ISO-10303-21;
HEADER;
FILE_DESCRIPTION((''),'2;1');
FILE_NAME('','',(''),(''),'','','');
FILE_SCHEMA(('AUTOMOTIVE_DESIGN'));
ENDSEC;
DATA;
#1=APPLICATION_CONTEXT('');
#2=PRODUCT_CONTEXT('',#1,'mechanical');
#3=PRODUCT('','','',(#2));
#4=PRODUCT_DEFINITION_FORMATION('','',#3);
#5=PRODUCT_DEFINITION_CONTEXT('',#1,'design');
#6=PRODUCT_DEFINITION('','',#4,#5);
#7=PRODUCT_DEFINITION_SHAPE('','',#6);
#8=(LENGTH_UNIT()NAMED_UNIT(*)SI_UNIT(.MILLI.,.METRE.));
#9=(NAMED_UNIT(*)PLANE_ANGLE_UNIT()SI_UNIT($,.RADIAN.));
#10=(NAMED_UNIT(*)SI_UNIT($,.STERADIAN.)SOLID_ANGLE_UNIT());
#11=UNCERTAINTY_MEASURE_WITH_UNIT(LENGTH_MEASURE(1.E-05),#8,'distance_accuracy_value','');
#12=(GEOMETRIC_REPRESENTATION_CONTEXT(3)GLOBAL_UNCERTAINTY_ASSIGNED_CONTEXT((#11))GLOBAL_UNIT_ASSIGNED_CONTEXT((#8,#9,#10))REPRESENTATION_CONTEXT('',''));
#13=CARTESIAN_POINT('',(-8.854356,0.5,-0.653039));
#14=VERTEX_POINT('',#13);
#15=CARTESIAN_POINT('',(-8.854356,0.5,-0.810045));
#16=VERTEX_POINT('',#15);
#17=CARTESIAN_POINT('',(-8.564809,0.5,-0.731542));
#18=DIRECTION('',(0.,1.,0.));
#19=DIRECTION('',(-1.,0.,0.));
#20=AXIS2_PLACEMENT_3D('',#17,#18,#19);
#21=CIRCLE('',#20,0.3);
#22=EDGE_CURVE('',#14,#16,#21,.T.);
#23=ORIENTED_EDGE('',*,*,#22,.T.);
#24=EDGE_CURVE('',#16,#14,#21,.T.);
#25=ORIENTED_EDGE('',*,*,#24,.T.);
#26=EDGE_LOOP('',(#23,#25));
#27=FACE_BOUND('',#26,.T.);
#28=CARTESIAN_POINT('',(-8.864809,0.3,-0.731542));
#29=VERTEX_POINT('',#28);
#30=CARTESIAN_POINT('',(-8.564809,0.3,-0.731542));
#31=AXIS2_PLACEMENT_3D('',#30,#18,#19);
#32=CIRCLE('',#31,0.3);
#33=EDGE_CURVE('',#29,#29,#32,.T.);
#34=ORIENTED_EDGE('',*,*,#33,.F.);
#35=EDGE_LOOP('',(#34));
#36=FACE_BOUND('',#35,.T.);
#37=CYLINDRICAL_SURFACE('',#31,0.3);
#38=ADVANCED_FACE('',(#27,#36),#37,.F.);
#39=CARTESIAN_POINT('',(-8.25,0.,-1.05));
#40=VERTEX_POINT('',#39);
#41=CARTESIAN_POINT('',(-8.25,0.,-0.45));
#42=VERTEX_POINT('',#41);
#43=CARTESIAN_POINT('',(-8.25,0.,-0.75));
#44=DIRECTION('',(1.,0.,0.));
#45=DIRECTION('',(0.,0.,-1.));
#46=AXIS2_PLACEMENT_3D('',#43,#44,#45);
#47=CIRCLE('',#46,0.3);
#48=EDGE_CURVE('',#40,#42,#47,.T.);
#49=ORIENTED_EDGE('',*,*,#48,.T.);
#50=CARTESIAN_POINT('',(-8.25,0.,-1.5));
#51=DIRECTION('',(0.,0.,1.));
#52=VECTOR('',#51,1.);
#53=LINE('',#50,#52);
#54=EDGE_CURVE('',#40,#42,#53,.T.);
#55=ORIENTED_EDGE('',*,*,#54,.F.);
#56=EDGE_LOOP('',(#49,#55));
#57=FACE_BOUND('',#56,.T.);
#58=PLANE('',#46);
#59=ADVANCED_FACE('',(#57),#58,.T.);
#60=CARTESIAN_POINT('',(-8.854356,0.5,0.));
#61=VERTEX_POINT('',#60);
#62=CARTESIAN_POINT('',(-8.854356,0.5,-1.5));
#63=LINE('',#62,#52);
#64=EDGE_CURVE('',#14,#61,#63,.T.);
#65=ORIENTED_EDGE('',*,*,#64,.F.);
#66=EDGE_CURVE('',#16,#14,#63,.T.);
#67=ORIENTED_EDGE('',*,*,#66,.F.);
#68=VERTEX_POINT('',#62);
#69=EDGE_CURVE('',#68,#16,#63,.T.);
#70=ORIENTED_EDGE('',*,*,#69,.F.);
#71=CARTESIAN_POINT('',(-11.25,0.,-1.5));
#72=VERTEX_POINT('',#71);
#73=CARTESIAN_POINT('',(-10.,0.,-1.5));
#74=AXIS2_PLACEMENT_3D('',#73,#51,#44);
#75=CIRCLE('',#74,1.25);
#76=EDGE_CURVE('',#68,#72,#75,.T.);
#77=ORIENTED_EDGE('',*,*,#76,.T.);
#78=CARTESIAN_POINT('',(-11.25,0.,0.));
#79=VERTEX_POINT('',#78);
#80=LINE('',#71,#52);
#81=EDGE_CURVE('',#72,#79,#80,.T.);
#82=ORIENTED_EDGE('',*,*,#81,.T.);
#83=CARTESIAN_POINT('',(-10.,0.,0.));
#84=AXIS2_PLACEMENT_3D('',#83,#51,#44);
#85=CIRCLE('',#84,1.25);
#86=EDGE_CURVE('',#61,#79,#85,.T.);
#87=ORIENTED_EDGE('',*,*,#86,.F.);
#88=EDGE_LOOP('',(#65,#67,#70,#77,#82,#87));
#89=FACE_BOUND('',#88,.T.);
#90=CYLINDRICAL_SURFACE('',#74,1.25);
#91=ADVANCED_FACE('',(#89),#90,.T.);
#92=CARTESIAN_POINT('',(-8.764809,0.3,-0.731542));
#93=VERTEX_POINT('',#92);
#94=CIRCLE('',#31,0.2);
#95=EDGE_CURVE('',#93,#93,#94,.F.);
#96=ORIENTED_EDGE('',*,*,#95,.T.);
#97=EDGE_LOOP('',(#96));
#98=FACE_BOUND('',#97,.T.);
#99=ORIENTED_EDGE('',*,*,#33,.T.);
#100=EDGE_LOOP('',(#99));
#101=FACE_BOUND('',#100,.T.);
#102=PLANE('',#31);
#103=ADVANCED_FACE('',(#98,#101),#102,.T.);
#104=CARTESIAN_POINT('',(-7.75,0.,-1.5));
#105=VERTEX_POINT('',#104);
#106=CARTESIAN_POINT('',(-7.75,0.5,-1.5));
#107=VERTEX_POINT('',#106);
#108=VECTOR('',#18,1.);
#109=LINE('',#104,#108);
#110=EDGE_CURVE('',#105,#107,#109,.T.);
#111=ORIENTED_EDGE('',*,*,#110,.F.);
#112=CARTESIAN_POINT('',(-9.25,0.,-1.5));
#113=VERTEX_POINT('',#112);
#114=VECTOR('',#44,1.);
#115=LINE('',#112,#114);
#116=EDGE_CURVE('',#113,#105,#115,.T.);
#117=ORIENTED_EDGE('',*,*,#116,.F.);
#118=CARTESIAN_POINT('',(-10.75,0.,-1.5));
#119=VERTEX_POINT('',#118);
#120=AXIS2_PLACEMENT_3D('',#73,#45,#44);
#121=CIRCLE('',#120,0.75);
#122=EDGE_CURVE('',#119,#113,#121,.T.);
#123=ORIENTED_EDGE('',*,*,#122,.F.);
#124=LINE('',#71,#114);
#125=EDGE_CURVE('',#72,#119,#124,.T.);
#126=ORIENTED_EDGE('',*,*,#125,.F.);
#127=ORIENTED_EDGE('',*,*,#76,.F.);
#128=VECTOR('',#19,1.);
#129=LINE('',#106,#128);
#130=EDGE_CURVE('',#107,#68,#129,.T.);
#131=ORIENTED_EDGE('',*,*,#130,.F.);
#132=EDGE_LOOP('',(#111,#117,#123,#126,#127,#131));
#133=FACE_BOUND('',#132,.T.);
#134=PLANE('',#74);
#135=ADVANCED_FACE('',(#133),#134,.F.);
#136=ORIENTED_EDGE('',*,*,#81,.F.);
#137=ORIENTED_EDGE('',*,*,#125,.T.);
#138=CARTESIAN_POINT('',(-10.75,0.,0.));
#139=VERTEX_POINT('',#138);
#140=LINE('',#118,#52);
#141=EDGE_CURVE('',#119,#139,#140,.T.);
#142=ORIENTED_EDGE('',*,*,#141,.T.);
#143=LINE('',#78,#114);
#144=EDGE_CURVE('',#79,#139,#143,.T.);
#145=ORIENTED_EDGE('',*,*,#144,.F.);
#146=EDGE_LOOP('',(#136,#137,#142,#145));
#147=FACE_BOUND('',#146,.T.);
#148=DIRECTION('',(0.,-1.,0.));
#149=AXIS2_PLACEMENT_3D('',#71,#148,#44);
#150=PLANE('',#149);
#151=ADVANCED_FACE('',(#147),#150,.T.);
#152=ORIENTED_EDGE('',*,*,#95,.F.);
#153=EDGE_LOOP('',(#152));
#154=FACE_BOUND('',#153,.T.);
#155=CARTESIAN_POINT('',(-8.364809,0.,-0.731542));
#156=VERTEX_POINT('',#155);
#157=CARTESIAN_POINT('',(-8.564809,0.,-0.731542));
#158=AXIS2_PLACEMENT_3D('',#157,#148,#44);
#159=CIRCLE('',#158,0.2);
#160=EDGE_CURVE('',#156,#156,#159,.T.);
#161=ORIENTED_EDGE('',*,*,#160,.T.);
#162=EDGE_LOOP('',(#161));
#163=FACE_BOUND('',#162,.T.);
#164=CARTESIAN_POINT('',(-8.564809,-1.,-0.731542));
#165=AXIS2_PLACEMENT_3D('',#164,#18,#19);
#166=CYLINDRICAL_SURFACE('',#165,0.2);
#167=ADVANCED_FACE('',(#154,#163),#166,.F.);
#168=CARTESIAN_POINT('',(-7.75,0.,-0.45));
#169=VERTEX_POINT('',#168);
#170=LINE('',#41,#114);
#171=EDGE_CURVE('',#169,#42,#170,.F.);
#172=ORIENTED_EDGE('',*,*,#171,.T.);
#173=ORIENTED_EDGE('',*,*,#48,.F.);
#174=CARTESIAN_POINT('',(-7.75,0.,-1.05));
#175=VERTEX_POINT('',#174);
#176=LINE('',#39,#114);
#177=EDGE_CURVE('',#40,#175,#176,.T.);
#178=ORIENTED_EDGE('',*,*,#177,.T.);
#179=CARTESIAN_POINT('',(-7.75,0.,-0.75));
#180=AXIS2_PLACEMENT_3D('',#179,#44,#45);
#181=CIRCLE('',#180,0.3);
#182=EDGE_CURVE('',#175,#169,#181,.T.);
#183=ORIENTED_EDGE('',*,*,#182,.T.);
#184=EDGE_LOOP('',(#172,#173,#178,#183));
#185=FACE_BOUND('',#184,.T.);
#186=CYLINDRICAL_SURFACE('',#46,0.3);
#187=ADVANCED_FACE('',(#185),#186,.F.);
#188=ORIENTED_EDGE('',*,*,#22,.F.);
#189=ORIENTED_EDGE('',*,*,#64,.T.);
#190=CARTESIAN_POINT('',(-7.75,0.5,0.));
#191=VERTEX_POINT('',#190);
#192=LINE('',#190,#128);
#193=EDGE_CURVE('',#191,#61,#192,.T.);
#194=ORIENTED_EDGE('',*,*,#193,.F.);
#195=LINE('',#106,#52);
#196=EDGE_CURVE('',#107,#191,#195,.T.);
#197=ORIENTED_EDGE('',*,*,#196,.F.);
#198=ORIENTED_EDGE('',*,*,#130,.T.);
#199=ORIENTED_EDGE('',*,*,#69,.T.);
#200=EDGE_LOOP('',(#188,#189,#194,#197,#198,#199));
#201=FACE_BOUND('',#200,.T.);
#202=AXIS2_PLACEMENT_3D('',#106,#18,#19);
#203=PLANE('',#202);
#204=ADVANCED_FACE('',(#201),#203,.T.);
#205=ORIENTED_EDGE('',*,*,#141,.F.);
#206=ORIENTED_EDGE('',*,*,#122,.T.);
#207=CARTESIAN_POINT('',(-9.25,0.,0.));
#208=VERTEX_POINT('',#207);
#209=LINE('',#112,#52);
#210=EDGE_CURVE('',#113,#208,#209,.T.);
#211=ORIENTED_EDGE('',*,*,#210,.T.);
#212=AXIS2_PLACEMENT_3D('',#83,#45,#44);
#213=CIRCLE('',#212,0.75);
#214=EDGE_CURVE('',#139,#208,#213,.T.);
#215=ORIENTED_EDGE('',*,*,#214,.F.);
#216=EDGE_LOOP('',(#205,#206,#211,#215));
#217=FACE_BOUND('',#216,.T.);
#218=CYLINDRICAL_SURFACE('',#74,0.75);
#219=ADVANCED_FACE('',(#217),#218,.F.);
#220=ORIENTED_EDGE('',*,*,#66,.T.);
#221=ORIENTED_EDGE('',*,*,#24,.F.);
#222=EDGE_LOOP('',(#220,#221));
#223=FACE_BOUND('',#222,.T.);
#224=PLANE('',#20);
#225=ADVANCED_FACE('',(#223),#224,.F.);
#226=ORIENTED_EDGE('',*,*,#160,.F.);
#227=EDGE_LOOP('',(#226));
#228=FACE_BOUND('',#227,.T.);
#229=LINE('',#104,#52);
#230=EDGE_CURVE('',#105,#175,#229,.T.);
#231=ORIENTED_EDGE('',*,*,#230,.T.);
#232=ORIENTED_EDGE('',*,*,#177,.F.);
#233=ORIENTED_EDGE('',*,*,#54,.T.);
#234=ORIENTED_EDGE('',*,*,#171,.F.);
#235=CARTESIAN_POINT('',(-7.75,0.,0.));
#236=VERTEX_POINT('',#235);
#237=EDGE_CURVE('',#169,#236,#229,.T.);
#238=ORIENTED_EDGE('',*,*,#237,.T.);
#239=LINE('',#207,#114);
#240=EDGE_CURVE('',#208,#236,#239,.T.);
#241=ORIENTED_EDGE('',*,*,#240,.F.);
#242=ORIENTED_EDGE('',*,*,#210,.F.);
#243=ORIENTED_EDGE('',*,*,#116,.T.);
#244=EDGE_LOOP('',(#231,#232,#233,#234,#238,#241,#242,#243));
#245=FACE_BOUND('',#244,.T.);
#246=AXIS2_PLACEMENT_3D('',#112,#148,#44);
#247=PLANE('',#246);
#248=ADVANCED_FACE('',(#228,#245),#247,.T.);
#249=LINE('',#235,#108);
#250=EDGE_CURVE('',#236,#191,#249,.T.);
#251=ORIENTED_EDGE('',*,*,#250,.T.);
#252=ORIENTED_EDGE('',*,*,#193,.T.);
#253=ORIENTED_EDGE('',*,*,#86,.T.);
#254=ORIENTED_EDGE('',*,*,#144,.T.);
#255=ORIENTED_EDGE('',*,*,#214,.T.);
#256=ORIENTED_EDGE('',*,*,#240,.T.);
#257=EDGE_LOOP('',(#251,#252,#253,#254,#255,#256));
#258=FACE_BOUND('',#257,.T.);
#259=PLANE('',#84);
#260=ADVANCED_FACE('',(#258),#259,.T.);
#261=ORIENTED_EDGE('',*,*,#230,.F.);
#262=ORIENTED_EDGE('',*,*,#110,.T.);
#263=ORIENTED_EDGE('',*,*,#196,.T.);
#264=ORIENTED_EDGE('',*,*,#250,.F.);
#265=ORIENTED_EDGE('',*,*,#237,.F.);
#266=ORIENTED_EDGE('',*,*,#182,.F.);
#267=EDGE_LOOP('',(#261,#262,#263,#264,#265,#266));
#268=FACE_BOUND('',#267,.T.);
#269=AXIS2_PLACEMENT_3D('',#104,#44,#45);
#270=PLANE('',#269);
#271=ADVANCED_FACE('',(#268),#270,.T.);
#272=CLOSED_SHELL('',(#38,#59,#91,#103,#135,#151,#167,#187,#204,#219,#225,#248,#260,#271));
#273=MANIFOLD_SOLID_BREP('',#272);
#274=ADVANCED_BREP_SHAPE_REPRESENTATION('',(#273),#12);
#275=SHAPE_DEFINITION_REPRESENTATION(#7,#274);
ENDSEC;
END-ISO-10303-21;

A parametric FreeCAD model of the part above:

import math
import FreeCAD as App
import Part
import Sketcher

V = App.Vector
Q = App.Units.Quantity

doc = App.newDocument("Part")
body = doc.addObject("PartDesign::Body", "Body")

# Sketch on XY plane
sketch1 = body.newObject("Sketcher::SketchObject", "Sketch")
sketch1.AttachmentSupport = (doc.getObject("XY_Plane"), [""])
sketch1.MapMode = "FlatFace"
sketch1.addGeometry(Part.LineSegment(V(-11.25, 0, 0), V(-10.75, 0, 0)), False)
sketch1.addGeometry(Part.ArcOfCircle(Part.Circle(V(-10, 0, 0), V(0, 0, 1), 0.75), math.radians(0), math.radians(180)), False)
sketch1.addGeometry(Part.LineSegment(V(-9.25, 0, 0), V(-7.75, 0, 0)), False)
sketch1.addGeometry(Part.LineSegment(V(-7.75, 0, 0), V(-7.75, 0.5, 0)), False)
sketch1.addGeometry(Part.LineSegment(V(-7.75, 0.5, 0), V(-8.854356, 0.5, 0)), False)
sketch1.addGeometry(Part.ArcOfCircle(Part.Circle(V(-10, 0, 0), V(0, 0, 1), 1.25), math.radians(23.578178), math.radians(180)), False)
sketch1.addConstraint(Sketcher.Constraint("Coincident", 0, 2, 1, 2))
sketch1.addConstraint(Sketcher.Constraint("Coincident", 1, 1, 2, 1))
sketch1.addConstraint(Sketcher.Constraint("Coincident", 2, 2, 3, 1))
sketch1.addConstraint(Sketcher.Constraint("Coincident", 3, 2, 4, 1))
sketch1.addConstraint(Sketcher.Constraint("Coincident", 4, 2, 5, 1))
sketch1.addConstraint(Sketcher.Constraint("Coincident", 5, 2, 0, 1))
sketch1.addConstraint(Sketcher.Constraint("Horizontal", 0))
sketch1.addConstraint(Sketcher.Constraint("Horizontal", 2))
sketch1.addConstraint(Sketcher.Constraint("Vertical", 3))
sketch1.addConstraint(Sketcher.Constraint("Horizontal", 4))
sketch1.addConstraint(Sketcher.Constraint("Coincident", 5, 3, 1, 3))
sketch1.addConstraint(Sketcher.Constraint("PointOnObject", 1, 3, -1))
sketch1.addConstraint(Sketcher.Constraint("PointOnObject", 0, 2, -1))
sketch1.addConstraint(Sketcher.Constraint("PointOnObject", 1, 1, -1))
sketch1.addConstraint(Sketcher.Constraint("Equal", 0, 3))
sketch1.addConstraint(Sketcher.Constraint("Radius", 1, Q("0.75 mm")))
sketch1.addConstraint(Sketcher.Constraint("Radius", 5, Q("1.25 mm")))
sketch1.addConstraint(Sketcher.Constraint("DistanceX", 2, 1, 2, 2, Q("1.5 mm")))
sketch1.addConstraint(Sketcher.Constraint("DistanceX", 1, 3, -1, 1, Q("10 mm")))
pad1 = body.newObject("PartDesign::Pad", "Pad")
pad1.Profile = sketch1
pad1.Length = 1.5
pad1.Reversed = True

# Sketch on XZ plane
sketch2 = body.newObject("Sketcher::SketchObject", "Sketch001")
sketch2.AttachmentSupport = (doc.getObject("XZ_Plane"), [""])
sketch2.MapMode = "FlatFace"
sketch2.AttachmentOffset = App.Placement(V(0, 0, -0.5), App.Rotation())
sketch2.addGeometry(Part.Circle(V(-8.564809, -0.731542, 0), V(0, 0, 1), 0.2), False)
sketch2.addConstraint(Sketcher.Constraint("Diameter", 0, Q("0.4 mm")))
sketch2.addConstraint(Sketcher.Constraint("DistanceX", 0, 3, -1, 1, Q("8.564809 mm")))
sketch2.addConstraint(Sketcher.Constraint("DistanceY", 0, 3, -1, 1, Q("0.731542 mm")))
pocket1 = body.newObject("PartDesign::Pocket", "Pocket")
pocket1.Profile = sketch2
pocket1.Length = 1.5
pocket1.Reversed = True

# Sketch on YZ plane
sketch3 = body.newObject("Sketcher::SketchObject", "Sketch002")
sketch3.AttachmentSupport = (doc.getObject("YZ_Plane"), [""])
sketch3.MapMode = "FlatFace"
sketch3.AttachmentOffset = App.Placement(V(0, 0, -7.75), App.Rotation())
sketch3.addGeometry(Part.Circle(V(0, -0.75, 0), V(0, 0, 1), 0.3), False)
sketch3.addConstraint(Sketcher.Constraint("PointOnObject", 0, 3, -2))
sketch3.addConstraint(Sketcher.Constraint("Diameter", 0, Q("0.6 mm")))
sketch3.addConstraint(Sketcher.Constraint("DistanceY", 0, 3, -1, 1, Q("0.75 mm")))
pocket2 = body.newObject("PartDesign::Pocket", "Pocket001")
pocket2.Profile = sketch3
pocket2.Length = 0.5

# Sketch on XZ plane
sketch4 = body.newObject("Sketcher::SketchObject", "Sketch003")
sketch4.AttachmentSupport = (doc.getObject("XZ_Plane"), [""])
sketch4.MapMode = "FlatFace"
sketch4.AttachmentOffset = App.Placement(V(0, 0, -0.5), App.Rotation())
sketch4.addGeometry(Part.Circle(V(-8.564809, -0.731542, 0), V(0, 0, 1), 0.3), False)
sketch4.addConstraint(Sketcher.Constraint("Diameter", 0, Q("0.6 mm")))
sketch4.addConstraint(Sketcher.Constraint("DistanceX", 0, 3, -1, 1, Q("8.564809 mm")))
sketch4.addConstraint(Sketcher.Constraint("DistanceY", 0, 3, -1, 1, Q("0.731542 mm")))
pocket3 = body.newObject("PartDesign::Pocket", "Pocket002")
pocket3.Profile = sketch4
pocket3.Length = 0.2
pocket3.Reversed = True

doc.recompute()
